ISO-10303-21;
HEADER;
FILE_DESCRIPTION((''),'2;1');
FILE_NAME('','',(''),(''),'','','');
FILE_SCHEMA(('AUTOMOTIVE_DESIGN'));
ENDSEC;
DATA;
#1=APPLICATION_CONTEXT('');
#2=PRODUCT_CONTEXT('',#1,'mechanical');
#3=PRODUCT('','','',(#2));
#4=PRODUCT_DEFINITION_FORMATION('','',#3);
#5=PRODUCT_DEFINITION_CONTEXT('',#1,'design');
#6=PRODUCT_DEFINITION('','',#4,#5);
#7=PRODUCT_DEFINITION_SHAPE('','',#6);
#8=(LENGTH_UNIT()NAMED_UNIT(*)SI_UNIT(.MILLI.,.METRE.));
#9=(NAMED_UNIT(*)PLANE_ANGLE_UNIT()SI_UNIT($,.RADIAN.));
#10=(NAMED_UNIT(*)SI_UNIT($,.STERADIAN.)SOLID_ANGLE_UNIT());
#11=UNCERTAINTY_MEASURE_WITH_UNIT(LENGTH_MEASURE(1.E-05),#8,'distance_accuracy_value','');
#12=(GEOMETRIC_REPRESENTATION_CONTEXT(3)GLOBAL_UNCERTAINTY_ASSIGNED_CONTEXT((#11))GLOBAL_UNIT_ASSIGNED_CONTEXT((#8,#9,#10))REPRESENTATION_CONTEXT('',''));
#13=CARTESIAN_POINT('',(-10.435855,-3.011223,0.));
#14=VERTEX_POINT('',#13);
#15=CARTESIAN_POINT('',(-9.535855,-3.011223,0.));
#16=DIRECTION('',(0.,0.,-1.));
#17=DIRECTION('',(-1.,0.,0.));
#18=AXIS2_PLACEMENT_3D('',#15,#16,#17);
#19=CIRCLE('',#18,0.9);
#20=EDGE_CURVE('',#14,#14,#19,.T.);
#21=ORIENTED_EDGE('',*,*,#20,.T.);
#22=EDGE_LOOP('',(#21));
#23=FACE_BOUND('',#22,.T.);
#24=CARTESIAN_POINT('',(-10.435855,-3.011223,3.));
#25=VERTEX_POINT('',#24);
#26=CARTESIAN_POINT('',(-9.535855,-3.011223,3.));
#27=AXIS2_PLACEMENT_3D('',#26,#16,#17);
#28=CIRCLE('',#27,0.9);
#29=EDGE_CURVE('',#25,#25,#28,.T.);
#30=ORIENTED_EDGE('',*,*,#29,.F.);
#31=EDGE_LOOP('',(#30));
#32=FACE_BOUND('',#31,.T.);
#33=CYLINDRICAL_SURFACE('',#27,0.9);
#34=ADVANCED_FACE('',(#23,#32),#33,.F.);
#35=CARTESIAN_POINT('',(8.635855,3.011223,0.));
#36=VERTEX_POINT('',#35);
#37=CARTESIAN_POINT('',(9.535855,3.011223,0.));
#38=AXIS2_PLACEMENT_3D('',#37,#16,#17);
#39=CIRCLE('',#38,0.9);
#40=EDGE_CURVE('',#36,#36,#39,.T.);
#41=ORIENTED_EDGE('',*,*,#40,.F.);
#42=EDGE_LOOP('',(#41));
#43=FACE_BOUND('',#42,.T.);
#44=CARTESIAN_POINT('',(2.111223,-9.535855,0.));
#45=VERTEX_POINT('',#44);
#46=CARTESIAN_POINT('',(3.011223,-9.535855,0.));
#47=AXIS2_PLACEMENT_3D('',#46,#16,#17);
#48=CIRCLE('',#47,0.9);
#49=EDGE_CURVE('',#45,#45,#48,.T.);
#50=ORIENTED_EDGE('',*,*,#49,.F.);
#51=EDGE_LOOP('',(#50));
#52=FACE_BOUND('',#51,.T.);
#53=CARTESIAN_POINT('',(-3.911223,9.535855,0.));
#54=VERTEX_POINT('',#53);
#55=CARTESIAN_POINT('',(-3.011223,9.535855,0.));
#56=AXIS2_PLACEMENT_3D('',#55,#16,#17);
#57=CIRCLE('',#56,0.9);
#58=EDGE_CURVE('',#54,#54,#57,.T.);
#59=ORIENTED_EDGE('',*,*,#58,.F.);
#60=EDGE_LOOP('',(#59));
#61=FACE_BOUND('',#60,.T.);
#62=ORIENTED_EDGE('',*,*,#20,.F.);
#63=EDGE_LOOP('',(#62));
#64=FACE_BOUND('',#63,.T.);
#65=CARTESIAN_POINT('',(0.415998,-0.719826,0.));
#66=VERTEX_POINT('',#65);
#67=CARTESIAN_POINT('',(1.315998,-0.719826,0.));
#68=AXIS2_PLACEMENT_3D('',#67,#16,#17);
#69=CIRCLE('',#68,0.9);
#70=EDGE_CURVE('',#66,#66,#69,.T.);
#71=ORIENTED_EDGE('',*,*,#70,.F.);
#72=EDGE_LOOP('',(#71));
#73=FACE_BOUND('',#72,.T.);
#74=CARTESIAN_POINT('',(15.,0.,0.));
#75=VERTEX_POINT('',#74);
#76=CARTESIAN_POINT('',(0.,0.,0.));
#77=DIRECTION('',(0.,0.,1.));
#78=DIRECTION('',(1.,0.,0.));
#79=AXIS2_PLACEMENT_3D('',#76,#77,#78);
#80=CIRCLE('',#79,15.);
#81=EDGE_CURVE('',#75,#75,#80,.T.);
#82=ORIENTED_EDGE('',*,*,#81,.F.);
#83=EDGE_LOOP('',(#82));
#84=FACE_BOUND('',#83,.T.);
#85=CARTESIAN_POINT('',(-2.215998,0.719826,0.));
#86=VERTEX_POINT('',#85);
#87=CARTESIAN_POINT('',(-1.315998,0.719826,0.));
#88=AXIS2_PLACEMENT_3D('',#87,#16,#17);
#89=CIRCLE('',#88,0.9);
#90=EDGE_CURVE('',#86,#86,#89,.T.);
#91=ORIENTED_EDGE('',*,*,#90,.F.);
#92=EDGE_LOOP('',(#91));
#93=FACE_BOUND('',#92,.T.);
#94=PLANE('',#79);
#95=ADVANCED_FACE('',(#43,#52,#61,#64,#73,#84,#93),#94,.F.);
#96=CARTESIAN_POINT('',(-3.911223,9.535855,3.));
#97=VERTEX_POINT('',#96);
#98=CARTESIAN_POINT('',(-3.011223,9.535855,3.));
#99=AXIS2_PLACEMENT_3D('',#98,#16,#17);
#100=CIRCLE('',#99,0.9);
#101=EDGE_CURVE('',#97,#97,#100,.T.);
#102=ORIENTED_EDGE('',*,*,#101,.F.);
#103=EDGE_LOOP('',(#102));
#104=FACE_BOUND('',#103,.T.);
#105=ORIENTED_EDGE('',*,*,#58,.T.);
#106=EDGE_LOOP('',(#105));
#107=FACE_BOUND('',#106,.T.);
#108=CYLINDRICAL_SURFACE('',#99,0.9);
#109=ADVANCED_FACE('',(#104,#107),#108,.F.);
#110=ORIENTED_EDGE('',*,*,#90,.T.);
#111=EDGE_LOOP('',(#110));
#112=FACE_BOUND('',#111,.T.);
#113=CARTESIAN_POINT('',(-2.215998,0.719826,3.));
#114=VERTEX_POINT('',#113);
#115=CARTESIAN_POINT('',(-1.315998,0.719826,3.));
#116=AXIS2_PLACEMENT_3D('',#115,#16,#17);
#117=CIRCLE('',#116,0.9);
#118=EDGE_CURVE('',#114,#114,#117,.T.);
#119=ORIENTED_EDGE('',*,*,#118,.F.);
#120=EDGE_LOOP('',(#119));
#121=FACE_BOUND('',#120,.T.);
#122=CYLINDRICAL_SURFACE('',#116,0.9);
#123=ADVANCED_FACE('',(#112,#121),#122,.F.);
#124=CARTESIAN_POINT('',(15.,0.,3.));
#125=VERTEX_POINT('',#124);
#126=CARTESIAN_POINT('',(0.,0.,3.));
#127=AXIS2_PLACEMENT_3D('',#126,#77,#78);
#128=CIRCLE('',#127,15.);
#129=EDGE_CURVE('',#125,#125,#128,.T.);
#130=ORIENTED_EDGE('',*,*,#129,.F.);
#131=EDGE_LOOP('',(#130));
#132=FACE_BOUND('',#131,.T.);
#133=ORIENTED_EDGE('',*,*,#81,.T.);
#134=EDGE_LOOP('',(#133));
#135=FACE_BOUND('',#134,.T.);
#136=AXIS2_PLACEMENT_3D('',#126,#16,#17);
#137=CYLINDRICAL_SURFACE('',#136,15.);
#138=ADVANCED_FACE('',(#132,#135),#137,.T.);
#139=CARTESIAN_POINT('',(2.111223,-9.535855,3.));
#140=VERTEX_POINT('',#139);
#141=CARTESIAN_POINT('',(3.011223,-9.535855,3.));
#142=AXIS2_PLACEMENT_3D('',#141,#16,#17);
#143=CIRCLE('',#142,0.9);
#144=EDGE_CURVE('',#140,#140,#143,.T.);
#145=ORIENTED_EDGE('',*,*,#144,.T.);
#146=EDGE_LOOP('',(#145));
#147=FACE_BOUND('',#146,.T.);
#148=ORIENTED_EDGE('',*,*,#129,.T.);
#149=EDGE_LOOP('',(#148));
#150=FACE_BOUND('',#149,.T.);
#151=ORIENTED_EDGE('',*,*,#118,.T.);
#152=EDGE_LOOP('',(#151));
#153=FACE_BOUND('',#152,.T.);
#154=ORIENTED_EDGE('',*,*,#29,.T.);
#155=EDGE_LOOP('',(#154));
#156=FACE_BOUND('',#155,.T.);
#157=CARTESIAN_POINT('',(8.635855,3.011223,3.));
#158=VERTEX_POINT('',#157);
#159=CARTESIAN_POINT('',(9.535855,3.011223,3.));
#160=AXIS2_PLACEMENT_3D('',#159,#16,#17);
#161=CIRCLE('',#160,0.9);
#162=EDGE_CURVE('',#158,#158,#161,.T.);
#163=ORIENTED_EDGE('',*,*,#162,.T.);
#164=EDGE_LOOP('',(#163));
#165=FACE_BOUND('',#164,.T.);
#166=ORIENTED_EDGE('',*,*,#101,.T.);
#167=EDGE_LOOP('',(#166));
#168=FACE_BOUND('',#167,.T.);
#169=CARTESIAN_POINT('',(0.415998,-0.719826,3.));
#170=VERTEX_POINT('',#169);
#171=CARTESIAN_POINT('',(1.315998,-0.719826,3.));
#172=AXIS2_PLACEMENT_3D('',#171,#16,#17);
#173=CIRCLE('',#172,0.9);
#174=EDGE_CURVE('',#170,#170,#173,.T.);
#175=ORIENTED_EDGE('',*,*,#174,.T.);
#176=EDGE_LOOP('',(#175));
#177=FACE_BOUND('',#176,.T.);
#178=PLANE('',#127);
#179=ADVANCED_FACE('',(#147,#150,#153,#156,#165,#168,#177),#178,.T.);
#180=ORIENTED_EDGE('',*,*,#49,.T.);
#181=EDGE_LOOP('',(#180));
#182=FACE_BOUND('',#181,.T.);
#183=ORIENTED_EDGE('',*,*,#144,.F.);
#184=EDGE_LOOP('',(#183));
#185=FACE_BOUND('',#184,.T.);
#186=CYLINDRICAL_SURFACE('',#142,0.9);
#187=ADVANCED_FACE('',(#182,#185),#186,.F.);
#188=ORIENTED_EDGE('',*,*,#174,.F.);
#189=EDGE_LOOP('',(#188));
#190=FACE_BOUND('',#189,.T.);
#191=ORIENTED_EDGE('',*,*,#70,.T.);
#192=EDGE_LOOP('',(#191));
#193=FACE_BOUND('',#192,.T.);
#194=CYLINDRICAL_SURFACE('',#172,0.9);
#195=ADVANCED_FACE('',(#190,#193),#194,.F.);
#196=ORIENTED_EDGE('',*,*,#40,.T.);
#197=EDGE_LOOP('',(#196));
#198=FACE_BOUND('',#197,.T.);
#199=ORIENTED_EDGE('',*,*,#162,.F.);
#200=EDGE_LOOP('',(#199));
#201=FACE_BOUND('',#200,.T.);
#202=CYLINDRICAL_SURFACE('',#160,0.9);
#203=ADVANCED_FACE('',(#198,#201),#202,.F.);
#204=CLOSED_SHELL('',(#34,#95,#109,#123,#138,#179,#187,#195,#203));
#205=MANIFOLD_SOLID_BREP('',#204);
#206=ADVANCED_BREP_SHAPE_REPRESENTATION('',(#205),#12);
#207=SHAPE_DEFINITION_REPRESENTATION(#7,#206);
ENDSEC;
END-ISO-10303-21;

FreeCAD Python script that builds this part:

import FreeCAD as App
import Part
import Sketcher

doc = App.newDocument("Part")
body = doc.addObject("PartDesign::Body", "Body")

# Sketch on XY plane
sketch1 = body.newObject("Sketcher::SketchObject", "Sketch")
sketch1.AttachmentSupport = (doc.getObject("XY_Plane"), [""])
sketch1.MapMode = "FlatFace"
sketch1.addGeometry(Part.Circle(App.Vector(0, 0, 0), App.Vector(0, 0, 1), 15), False)
sketch1.addConstraint([
    Sketcher.Constraint("Coincident", 0, 3, -1, 1),
    Sketcher.Constraint("Diameter", 0, 30.0),
])
pad1 = body.newObject("PartDesign::Pad", "Pad")
pad1.Profile = sketch1
pad1.Length = 3

# Sketch on XY plane
sketch2 = body.newObject("Sketcher::SketchObject", "Sketch001")
sketch2.AttachmentSupport = (doc.getObject("XY_Plane"), [""])
sketch2.MapMode = "FlatFace"
sketch2.addGeometry([
    Part.Circle(App.Vector(1.3, -0.7, 0), App.Vector(0, 0, 1), 0.9),  # 0
    Part.Circle(App.Vector(-1.3, 0.7, 0), App.Vector(0, 0, 1), 0.9),  # 1
    Part.Circle(App.Vector(3, -9.5, 0), App.Vector(0, 0, 1), 0.9),  # 2
    Part.Circle(App.Vector(9.5, 3, 0), App.Vector(0, 0, 1), 0.9),  # 3
    Part.Circle(App.Vector(-3, 9.5, 0), App.Vector(0, 0, 1), 0.9),  # 4
    Part.Circle(App.Vector(-9.5, -3, 0), App.Vector(0, 0, 1), 0.9),  # 5
], False)
sketch2.addConstraint([
    Sketcher.Constraint("Equal", 0, 1),
    Sketcher.Constraint("Equal", 1, 2),
    Sketcher.Constraint("Equal", 2, 3),
    Sketcher.Constraint("Equal", 3, 4),
    Sketcher.Constraint("Equal", 4, 5),
    Sketcher.Constraint("Symmetric", 0, 3, 1, 3, -1, 1),
    Sketcher.Constraint("Symmetric", 2, 3, 4, 3, -1, 1),
    Sketcher.Constraint("Symmetric", 3, 3, 5, 3, -1, 1),
    Sketcher.Constraint("Diameter", 0, 1.8),
    Sketcher.Constraint("DistanceY", 2, 3, 0, 3, 8.816029),
    Sketcher.Constraint("DistanceX", 1, 3, 2, 3, 4.327221),
    Sketcher.Constraint("DistanceY", 2, 3, 1, 3, 10.255681),
    Sketcher.Constraint("DistanceY", 0, 3, 3, 3, 3.731049),
    Sketcher.Constraint("DistanceX", 4, 3, 3, 3, 12.547078),
    Sketcher.Constraint("DistanceX", 5, 3, 3, 3, 19.071711),
])
pocket1 = body.newObject("PartDesign::Pocket", "Pocket")
pocket1.Profile = sketch2
pocket1.Length = 3
pocket1.Reversed = True

doc.recompute()
